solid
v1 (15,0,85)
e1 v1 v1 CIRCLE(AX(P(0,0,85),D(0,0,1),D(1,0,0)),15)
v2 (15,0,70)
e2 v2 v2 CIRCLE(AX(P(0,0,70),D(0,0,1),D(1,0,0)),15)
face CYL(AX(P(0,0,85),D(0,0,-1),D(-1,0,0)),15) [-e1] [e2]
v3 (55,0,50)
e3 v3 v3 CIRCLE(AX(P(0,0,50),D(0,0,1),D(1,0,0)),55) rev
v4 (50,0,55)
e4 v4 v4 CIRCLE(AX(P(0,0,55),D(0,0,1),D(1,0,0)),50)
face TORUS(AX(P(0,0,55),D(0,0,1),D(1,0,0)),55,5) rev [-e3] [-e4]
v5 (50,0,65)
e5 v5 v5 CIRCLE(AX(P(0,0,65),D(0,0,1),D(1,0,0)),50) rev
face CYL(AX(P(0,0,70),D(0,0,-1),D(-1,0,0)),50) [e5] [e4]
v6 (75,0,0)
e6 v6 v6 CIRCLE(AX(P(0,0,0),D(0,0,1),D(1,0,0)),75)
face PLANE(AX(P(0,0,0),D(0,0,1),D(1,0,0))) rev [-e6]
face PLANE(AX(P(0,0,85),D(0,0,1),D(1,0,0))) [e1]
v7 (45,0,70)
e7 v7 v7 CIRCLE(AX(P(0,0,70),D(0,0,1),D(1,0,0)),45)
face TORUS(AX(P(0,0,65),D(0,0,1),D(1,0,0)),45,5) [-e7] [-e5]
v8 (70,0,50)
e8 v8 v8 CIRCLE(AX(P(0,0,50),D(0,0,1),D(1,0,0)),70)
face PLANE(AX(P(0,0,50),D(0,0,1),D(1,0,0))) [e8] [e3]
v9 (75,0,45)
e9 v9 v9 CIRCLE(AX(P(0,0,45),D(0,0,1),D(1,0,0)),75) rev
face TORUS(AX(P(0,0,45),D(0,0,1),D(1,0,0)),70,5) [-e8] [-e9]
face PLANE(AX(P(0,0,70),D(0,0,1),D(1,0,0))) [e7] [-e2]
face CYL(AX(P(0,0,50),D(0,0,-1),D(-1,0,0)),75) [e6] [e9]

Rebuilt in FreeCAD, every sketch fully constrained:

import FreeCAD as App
import Part
import Sketcher


def edges_at(feature, points):
    """Names of the edges that pass closest to the given points."""
    edges = feature.Shape.Edges
    near = lambda p: min(range(len(edges)), key=lambda i: edges[i].distToShape(Part.Vertex(*p))[0])
    return sorted({f"Edge{near(p) + 1}" for p in points})

doc = App.newDocument("Part")
body = doc.addObject("PartDesign::Body", "Body")

# Sketch on XY plane
sketch1 = body.newObject("Sketcher::SketchObject", "Sketch")
sketch1.AttachmentSupport = (doc.getObject("XY_Plane"), [""])
sketch1.MapMode = "FlatFace"
sketch1.addGeometry(Part.Circle(App.Vector(0, 0, 0), App.Vector(0, 0, 1), 75), False)
sketch1.addConstraint(Sketcher.Constraint("Coincident", 0, 3, -1, 1))
sketch1.addConstraint(Sketcher.Constraint("Diameter", 0, 150.0))
pad1 = body.newObject("PartDesign::Pad", "Pad")
pad1.Profile = sketch1
pad1.Length = 50

# Sketch on XY plane
sketch2 = body.newObject("Sketcher::SketchObject", "Sketch001")
sketch2.AttachmentSupport = (doc.getObject("XY_Plane"), [""])
sketch2.MapMode = "FlatFace"
sketch2.AttachmentOffset = App.Placement(App.Vector(0, 0, 50), App.Rotation())
sketch2.addGeometry(Part.Circle(App.Vector(0, 0, 0), App.Vector(0, 0, 1), 50), False)
sketch2.addConstraint(Sketcher.Constraint("Coincident", 0, 3, -1, 1))
sketch2.addConstraint(Sketcher.Constraint("Diameter", 0, 100.0))
pad2 = body.newObject("PartDesign::Pad", "Pad001")
pad2.Profile = sketch2
pad2.Length = 20

# Sketch on XY plane
sketch3 = body.newObject("Sketcher::SketchObject", "Sketch002")
sketch3.AttachmentSupport = (doc.getObject("XY_Plane"), [""])
sketch3.MapMode = "FlatFace"
sketch3.AttachmentOffset = App.Placement(App.Vector(0, 0, 70), App.Rotation())
sketch3.addGeometry(Part.Circle(App.Vector(0, 0, 0), App.Vector(0, 0, 1), 15), False)
sketch3.addConstraint(Sketcher.Constraint("Coincident", 0, 3, -1, 1))
sketch3.addConstraint(Sketcher.Constraint("Diameter", 0, 30.0))
pad3 = body.newObject("PartDesign::Pad", "Pad002")
pad3.Profile = sketch3
pad3.Length = 15
doc.recompute()

fillet = body.newObject("PartDesign::Fillet", "Fillet")
fillet.Base = (pad3, edges_at(pad3, [(-75, 0, 50), (-50, 0, 50), (-50, 0, 70)]))
fillet.Radius = 5

doc.recompute()
